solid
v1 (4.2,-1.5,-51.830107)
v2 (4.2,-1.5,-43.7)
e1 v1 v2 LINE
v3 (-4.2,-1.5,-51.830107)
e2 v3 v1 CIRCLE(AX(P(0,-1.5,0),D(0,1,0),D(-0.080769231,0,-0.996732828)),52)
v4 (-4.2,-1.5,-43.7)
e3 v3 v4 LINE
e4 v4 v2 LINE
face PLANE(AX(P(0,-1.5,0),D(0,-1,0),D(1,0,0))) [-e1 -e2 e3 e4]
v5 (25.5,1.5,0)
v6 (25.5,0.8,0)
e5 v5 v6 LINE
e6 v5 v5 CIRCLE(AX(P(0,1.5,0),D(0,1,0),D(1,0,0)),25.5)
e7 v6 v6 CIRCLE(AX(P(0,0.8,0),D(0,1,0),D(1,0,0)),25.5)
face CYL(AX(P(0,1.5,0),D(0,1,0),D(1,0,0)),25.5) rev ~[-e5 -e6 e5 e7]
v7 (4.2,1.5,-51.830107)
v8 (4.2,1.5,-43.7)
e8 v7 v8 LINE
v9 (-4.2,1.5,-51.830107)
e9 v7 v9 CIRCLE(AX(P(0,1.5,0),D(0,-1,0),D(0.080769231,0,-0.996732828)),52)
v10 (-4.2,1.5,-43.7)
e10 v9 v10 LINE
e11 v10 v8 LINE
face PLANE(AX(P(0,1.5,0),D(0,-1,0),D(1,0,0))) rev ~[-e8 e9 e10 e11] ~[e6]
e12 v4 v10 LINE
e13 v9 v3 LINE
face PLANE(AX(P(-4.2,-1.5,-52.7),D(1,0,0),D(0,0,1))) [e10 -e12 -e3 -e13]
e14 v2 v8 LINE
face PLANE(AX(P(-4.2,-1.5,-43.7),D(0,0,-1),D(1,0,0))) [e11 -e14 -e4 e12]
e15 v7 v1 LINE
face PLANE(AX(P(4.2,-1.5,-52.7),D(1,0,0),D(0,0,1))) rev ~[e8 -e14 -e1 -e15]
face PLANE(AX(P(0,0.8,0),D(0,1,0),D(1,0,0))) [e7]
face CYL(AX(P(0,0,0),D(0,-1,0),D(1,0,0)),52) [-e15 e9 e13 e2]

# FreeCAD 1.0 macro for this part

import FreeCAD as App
import Part
import Sketcher

V = App.Vector
Q = App.Units.Quantity


def add_polygon(sketch, points):
    """Adds a closed chain of lines whose ends are joined by coincident constraints."""
    first, n = sketch.GeometryCount, len(points)
    for a, b in zip(points, points[1:] + points[:1]):
        sketch.addGeometry(Part.LineSegment(App.Vector(*a, 0), App.Vector(*b, 0)), False)
    for i in range(n):
        sketch.addConstraint(Sketcher.Constraint("Coincident", first + i, 2, first + (i + 1) % n, 1))

doc = App.newDocument("Part")
body = doc.addObject("PartDesign::Body", "Body")

sketch1 = body.newObject("Sketcher::SketchObject", "Sketch")
sketch1.AttachmentSupport = (doc.getObject("XZ_Plane"), [""])
sketch1.MapMode = "FlatFace"
sketch1.addGeometry(Part.Circle(V(0, 0, 0), V(0, 0, 1), 52), False)
sketch1.addConstraint(Sketcher.Constraint("Coincident", 0, 3, -1, 1))
sketch1.addConstraint(Sketcher.Constraint("Diameter", 0, Q("104 mm")))
pad1 = body.newObject("PartDesign::Pad", "Pad")
pad1.Profile = sketch1
pad1.Length = 3
pad1.Midplane = True

sketch2 = body.newObject("Sketcher::SketchObject", "Sketch001")
sketch2.AttachmentSupport = (doc.getObject("XZ_Plane"), [""])
sketch2.MapMode = "FlatFace"
sketch2.AttachmentOffset = App.Placement(V(0, 0, -1.5), App.Rotation())
sketch2.addGeometry(Part.Circle(V(0, 0, 0), V(0, 0, 1), 25.5), False)
sketch2.addConstraint(Sketcher.Constraint("Coincident", 0, 3, -1, 1))
sketch2.addConstraint(Sketcher.Constraint("Diameter", 0, Q("51 mm")))
pocket1 = body.newObject("PartDesign::Pocket", "Pocket")
pocket1.Profile = sketch2
pocket1.Length = 0.7
pocket1.Reversed = True

sketch3 = body.newObject("Sketcher::SketchObject", "Sketch002")
sketch3.AttachmentSupport = (doc.getObject("XZ_Plane"), [""])
sketch3.MapMode = "FlatFace"
sketch3.AttachmentOffset = App.Placement(V(0, 0, 1.5), App.Rotation())
add_polygon(sketch3, [(-4.2, -43.7), (-4.2, -52.7), (4.2, -52.7), (4.2, -43.7)])
sketch3.addConstraint(Sketcher.Constraint("Vertical", 0))
sketch3.addConstraint(Sketcher.Constraint("Horizontal", 1))
sketch3.addConstraint(Sketcher.Constraint("Vertical", 2))
sketch3.addConstraint(Sketcher.Constraint("Horizontal", 3))
sketch3.addConstraint(Sketcher.Constraint("DistanceY", 0, 2, 0, 1, Q("9 mm")))
sketch3.addConstraint(Sketcher.Constraint("DistanceX", 1, 1, 1, 2, Q("8.4 mm")))
sketch3.addConstraint(Sketcher.Constraint("DistanceX", 0, 2, -1, 1, Q("4.2 mm")))
sketch3.addConstraint(Sketcher.Constraint("DistanceY", 0, 2, -1, 1, Q("52.7 mm")))
pocket2 = body.newObject("PartDesign::Pocket", "Pocket001")
pocket2.Profile = sketch3
pocket2.Length = 10

doc.recompute()
